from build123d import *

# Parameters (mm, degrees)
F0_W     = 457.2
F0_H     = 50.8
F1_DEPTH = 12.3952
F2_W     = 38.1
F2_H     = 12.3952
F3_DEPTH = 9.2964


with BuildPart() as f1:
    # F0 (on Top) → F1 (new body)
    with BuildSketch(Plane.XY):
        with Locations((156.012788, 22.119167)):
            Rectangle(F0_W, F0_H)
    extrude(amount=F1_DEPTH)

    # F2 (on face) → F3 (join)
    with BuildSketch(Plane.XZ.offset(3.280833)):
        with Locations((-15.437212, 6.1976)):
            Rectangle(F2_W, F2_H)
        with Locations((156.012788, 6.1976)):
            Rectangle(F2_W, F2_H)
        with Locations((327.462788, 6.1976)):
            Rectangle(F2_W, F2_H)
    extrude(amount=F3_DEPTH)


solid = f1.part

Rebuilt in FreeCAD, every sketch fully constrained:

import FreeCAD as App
import Part
import Sketcher
Q = App.Units.Quantity


def add_polygon(sketch, points):
    """Adds a closed chain of lines whose ends are joined by coincident constraints."""
    first, n = sketch.GeometryCount, len(points)
    for a, b in zip(points, points[1:] + points[:1]):
        sketch.addGeometry(Part.LineSegment(App.Vector(*a, 0), App.Vector(*b, 0)), False)
    for i in range(n):
        sketch.addConstraint(Sketcher.Constraint("Coincident", first + i, 2, first + (i + 1) % n, 1))

doc = App.newDocument("Part")
body = doc.addObject("PartDesign::Body", "Body")

sketch1 = body.newObject("Sketcher::SketchObject", "Sketch")
sketch1.AttachmentSupport = (doc.getObject("XY_Plane"), [""])
sketch1.MapMode = "FlatFace"
add_polygon(sketch1, [(-72.587212, 47.519167), (-72.587212, -3.280833), (384.612788, -3.280833), (384.612788, 47.519167)])
sketch1.addConstraint(Sketcher.Constraint("Vertical", 0))
sketch1.addConstraint(Sketcher.Constraint("Horizontal", 1))
sketch1.addConstraint(Sketcher.Constraint("Vertical", 2))
sketch1.addConstraint(Sketcher.Constraint("Horizontal", 3))
sketch1.addConstraint(Sketcher.Constraint("DistanceX", 1, 1, 1, 2, Q("18 in")))
sketch1.addConstraint(Sketcher.Constraint("DistanceY", 0, 2, 0, 1, Q("2 in")))
sketch1.addConstraint(Sketcher.Constraint("DistanceX", 0, 2, -1, 1, 72.587212))
sketch1.addConstraint(Sketcher.Constraint("DistanceY", 0, 2, -1, 1, 3.280833))
pad1 = body.newObject("PartDesign::Pad", "Pad")
pad1.Profile = sketch1
pad1.Length = Q("0.488 in")

sketch2 = body.newObject("Sketcher::SketchObject", "Sketch001")
sketch2.AttachmentSupport = (doc.getObject("XZ_Plane"), [""])
sketch2.MapMode = "FlatFace"
sketch2.AttachmentOffset = App.Placement(App.Vector(0, 0, 3.280833), App.Rotation())
add_polygon(sketch2, [(-34.487212, 12.3952), (-34.487212, 0), (3.612788, 0), (3.612788, 12.3952)])
add_polygon(sketch2, [(136.962788, 12.3952), (136.962788, 0), (175.062788, 0), (175.062788, 12.3952)])
add_polygon(sketch2, [(308.412788, 12.3952), (308.412788, 0), (346.512788, 0), (346.512788, 12.3952)])
sketch2.addConstraint(Sketcher.Constraint("Vertical", 0))
sketch2.addConstraint(Sketcher.Constraint("Horizontal", 1))
sketch2.addConstraint(Sketcher.Constraint("Vertical", 2))
sketch2.addConstraint(Sketcher.Constraint("Horizontal", 3))
sketch2.addConstraint(Sketcher.Constraint("Vertical", 4))
sketch2.addConstraint(Sketcher.Constraint("Horizontal", 5))
sketch2.addConstraint(Sketcher.Constraint("Vertical", 6))
sketch2.addConstraint(Sketcher.Constraint("Horizontal", 7))
sketch2.addConstraint(Sketcher.Constraint("Vertical", 8))
sketch2.addConstraint(Sketcher.Constraint("Horizontal", 9))
sketch2.addConstraint(Sketcher.Constraint("Vertical", 10))
sketch2.addConstraint(Sketcher.Constraint("Horizontal", 11))
sketch2.addConstraint(Sketcher.Constraint("PointOnObject", 0, 2, -1))
sketch2.addConstraint(Sketcher.Constraint("PointOnObject", 4, 2, -1))
sketch2.addConstraint(Sketcher.Constraint("PointOnObject", 8, 2, -1))
sketch2.addConstraint(Sketcher.Constraint("Horizontal", 3, 2, 6, 2))
sketch2.addConstraint(Sketcher.Constraint("Horizontal", 7, 2, 10, 2))
sketch2.addConstraint(Sketcher.Constraint("Equal", 3, 5))
sketch2.addConstraint(Sketcher.Constraint("Equal", 7, 9))
sketch2.addConstraint(Sketcher.Constraint("DistanceX", 1, 1, 1, 2, Q("1.5 in")))
sketch2.addConstraint(Sketcher.Constraint("DistanceX", 1, 2, 8, 2, Q("12 in")))
sketch2.addConstraint(Sketcher.Constraint("DistanceY", 0, 2, 0, 1, Q("0.488 in")))
sketch2.addConstraint(Sketcher.Constraint("DistanceX", 1, 2, 4, 2, Q("5.25 in")))
sketch2.addConstraint(Sketcher.Constraint("DistanceX", -1, 1, 1, 2, 3.612788))
pad2 = body.newObject("PartDesign::Pad", "Pad001")
pad2.Profile = sketch2
pad2.Length = Q("0.366 in")

doc.recompute()
